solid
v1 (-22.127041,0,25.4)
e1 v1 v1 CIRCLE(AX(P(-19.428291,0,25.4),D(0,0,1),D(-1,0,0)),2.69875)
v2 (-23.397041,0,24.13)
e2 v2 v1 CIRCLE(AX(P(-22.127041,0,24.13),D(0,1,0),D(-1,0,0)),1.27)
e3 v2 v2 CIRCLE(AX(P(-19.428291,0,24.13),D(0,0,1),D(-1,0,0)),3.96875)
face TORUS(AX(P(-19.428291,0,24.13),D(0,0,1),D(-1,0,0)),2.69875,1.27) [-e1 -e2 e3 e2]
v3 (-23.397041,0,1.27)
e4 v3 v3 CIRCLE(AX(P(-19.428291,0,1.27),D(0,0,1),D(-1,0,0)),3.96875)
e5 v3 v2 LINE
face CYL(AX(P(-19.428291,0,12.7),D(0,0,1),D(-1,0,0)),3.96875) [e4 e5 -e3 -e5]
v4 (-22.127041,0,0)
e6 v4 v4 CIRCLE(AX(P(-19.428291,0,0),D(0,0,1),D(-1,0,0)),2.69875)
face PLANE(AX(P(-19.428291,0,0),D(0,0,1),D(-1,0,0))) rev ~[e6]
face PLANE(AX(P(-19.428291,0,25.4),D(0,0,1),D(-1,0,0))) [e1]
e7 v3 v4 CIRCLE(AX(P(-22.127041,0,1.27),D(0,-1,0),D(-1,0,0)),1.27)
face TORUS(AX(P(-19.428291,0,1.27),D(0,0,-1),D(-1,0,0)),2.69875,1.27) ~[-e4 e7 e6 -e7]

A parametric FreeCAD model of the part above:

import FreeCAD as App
import Part
import Sketcher
from FreeCAD import Vector
Q = App.Units.Quantity


def edges_at(feature, points):
    """Names of the edges that pass closest to the given points."""
    edges = feature.Shape.Edges
    near = lambda p: min(range(len(edges)), key=lambda i: edges[i].distToShape(Part.Vertex(*p))[0])
    return sorted({f"Edge{near(p) + 1}" for p in points})


def add_polygon(sketch, points):
    """Adds a closed chain of lines whose ends are joined by coincident constraints."""
    first, n = sketch.GeometryCount, len(points)
    for a, b in zip(points, points[1:] + points[:1]):
        sketch.addGeometry(Part.LineSegment(App.Vector(*a, 0), App.Vector(*b, 0)), False)
    for i in range(n):
        sketch.addConstraint(Sketcher.Constraint("Coincident", first + i, 2, first + (i + 1) % n, 1))

doc = App.newDocument("Part")
params = doc.addObject("Spreadsheet::Sheet", "Params")
for row, (alias, value) in enumerate([
    ("sketch1_height", "1 in"),
    ("sketch1_width", "0.15625 in"),
    ("revolution_angle", "360 deg"),
    ("fillet_radius", "0.05 in"),
], start=1):
    params.set(f"A{row}", alias)
    params.set(f"B{row}", "=" + value)
    params.setAlias(f"B{row}", alias)

body = doc.addObject("PartDesign::Body", "Body")

sketch1 = body.newObject("Sketcher::SketchObject", "Sketch")
sketch1.AttachmentSupport = (doc.getObject("XZ_Plane"), [""])
sketch1.MapMode = "FlatFace"
add_polygon(sketch1, [(-23.397041, 25.4), (-23.397041, 0), (-19.428291, 0), (-19.428291, 25.4)])
sketch1.addGeometry(Part.LineSegment(Vector(-19.428291, 0, 0), Vector(-19.428291, 25.4, 0)), True)
sketch1.addConstraint([
    Sketcher.Constraint("Vertical", 0),
    Sketcher.Constraint("Horizontal", 1),
    Sketcher.Constraint("Vertical", 2),
    Sketcher.Constraint("Horizontal", 3),
    Sketcher.Constraint("Vertical", 4),
    Sketcher.Constraint("Coincident", 4, 1, 1, 2),
    Sketcher.Constraint("PointOnObject", 0, 2, -1),
    Sketcher.Constraint("Horizontal", 3, 2, 4, 2),
    Sketcher.Constraint("DistanceY", 0, 2, 0, 1, Q("1 in")),
    Sketcher.Constraint("DistanceX", 1, 1, 1, 2, Q("0.15625 in")),
    Sketcher.Constraint("DistanceX", 0, 2, -1, 1, Q("23.397041 mm")),
])
sketch1.setExpression("Constraints[12]", "Params.sketch1_height")
sketch1.setExpression("Constraints[13]", "Params.sketch1_width")
revolution = body.newObject("PartDesign::Revolution", "Revolution")
revolution.Profile = sketch1
revolution.ReferenceAxis = (sketch1, ["Axis0"])
revolution.setExpression("Angle", "Params.revolution_angle")
doc.recompute()

fillet = body.newObject("PartDesign::Fillet", "Fillet")
fillet.Base = (revolution, edges_at(revolution, [(-15.46, 0, 25.4), (-15.46, 0, 0)]))
fillet.setExpression("Radius", "Params.fillet_radius")

doc.recompute()
